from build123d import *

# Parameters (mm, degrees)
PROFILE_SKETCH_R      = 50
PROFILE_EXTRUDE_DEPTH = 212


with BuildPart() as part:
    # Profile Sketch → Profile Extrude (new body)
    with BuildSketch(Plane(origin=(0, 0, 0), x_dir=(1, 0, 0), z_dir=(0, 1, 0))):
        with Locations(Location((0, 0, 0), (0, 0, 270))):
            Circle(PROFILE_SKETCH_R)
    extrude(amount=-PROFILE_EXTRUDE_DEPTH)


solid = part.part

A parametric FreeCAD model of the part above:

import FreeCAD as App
import Part
import Sketcher
from FreeCAD import Vector
Q = App.Units.Quantity

doc = App.newDocument("Part")
body = doc.addObject("PartDesign::Body", "Body")

# Sketch on XZ plane
sketch1 = doc.addObject("Sketcher::SketchObject", "Sketch")
body.addObject(sketch1)
sketch1.AttachmentSupport = (doc.XZ_Plane, [""])
sketch1.MapMode = "FlatFace"
sketch1.addGeometry(Part.Circle(Vector(0, 0, 0), Vector(0, 0, 1), 50), False)
sketch1.addConstraint([
    Sketcher.Constraint("Coincident", 0, 3, -1, 1),
    Sketcher.Constraint("Diameter", 0, Q("100 mm")),
])
pad1 = doc.addObject("PartDesign::Pad", "Pad")
body.addObject(pad1)
pad1.Profile = sketch1
pad1.Length = 212

doc.recompute()
